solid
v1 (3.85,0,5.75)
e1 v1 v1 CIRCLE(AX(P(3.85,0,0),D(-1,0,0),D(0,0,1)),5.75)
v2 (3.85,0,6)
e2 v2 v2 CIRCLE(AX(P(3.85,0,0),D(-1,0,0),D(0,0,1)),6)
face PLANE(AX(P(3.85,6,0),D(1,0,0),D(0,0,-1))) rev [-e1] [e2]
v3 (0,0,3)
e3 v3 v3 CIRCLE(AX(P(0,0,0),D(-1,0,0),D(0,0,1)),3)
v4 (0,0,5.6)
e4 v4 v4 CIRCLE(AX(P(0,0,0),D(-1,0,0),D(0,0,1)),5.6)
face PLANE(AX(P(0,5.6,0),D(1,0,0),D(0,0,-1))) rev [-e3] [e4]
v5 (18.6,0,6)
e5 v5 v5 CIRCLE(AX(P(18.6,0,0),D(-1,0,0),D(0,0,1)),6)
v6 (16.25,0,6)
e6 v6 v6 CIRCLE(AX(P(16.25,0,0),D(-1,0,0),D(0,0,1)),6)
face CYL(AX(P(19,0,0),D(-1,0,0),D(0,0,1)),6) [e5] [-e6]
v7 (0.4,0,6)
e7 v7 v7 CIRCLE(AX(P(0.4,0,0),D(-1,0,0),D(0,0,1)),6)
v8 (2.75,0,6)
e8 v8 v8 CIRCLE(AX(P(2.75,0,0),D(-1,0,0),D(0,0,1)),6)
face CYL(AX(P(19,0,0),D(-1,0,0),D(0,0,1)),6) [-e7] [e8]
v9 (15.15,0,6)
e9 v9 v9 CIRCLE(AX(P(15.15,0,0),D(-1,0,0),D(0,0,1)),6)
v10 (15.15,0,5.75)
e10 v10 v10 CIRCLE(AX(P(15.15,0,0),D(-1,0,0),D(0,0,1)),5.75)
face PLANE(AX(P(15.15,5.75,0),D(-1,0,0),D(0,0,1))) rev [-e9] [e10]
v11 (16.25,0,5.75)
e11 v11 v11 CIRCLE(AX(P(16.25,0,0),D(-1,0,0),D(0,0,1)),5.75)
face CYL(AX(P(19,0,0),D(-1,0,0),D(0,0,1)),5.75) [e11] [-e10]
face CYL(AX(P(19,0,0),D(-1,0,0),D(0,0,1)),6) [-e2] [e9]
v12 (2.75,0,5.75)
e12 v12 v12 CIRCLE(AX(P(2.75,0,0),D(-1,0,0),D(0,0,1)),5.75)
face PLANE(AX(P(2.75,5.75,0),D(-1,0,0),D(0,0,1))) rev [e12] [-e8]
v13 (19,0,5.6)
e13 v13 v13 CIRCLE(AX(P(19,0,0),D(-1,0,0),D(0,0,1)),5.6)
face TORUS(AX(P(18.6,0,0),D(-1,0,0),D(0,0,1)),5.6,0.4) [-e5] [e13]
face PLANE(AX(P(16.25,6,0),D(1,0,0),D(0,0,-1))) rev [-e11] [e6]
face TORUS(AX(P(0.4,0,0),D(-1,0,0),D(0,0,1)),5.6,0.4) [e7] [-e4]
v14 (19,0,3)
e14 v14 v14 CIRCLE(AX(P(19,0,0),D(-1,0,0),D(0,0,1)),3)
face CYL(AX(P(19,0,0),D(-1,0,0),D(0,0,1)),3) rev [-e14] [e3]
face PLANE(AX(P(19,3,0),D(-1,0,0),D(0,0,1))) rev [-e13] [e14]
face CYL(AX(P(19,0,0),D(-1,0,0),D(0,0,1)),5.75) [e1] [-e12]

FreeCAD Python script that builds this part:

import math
import FreeCAD as App
import Part
import Sketcher
from FreeCAD import Vector

doc = App.newDocument("Part")
body = doc.addObject("PartDesign::Body", "Body")

# Sketch on XY plane
sketch1 = body.newObject("Sketcher::SketchObject", "Sketch")
sketch1.AttachmentSupport = (doc.getObject("XY_Plane"), [""])
sketch1.MapMode = "FlatFace"
sketch1.addGeometry([
    Part.LineSegment(Vector(0, 5.6, 0), Vector(0, 3, 0)),  # 0
    Part.LineSegment(Vector(0, 3, 0), Vector(19, 3, 0)),  # 1
    Part.LineSegment(Vector(19, 3, 0), Vector(19, 5.6, 0)),  # 2
    Part.ArcOfCircle(Part.Circle(Vector(18.6, 5.6, 0), Vector(0, 0, 1), 0.4), math.radians(0), math.radians(90)),  # 3
    Part.LineSegment(Vector(18.6, 6, 0), Vector(16.25, 6, 0)),  # 4
    Part.LineSegment(Vector(16.25, 6, 0), Vector(16.25, 5.75, 0)),  # 5
    Part.LineSegment(Vector(16.25, 5.75, 0), Vector(15.15, 5.75, 0)),  # 6
    Part.LineSegment(Vector(15.15, 5.75, 0), Vector(15.15, 6, 0)),  # 7
    Part.LineSegment(Vector(15.15, 6, 0), Vector(3.85, 6, 0)),  # 8
    Part.LineSegment(Vector(3.85, 6, 0), Vector(3.85, 5.75, 0)),  # 9
    Part.LineSegment(Vector(3.85, 5.75, 0), Vector(2.75, 5.75, 0)),  # 10
    Part.LineSegment(Vector(2.75, 5.75, 0), Vector(2.75, 6, 0)),  # 11
    Part.LineSegment(Vector(2.75, 6, 0), Vector(0.4, 6, 0)),  # 12
    Part.ArcOfCircle(Part.Circle(Vector(0.4, 5.6, 0), Vector(0, 0, 1), 0.4), math.radians(90), math.radians(180)),  # 13
], False)
sketch1.addConstraint([
    Sketcher.Constraint("Coincident", 0, 2, 1, 1),
    Sketcher.Constraint("Coincident", 1, 2, 2, 1),
    Sketcher.Constraint("Tangent", 2, 2, 3, 1),
    Sketcher.Constraint("Tangent", 3, 2, 4, 1),
    Sketcher.Constraint("Coincident", 4, 2, 5, 1),
    Sketcher.Constraint("Coincident", 5, 2, 6, 1),
    Sketcher.Constraint("Coincident", 6, 2, 7, 1),
    Sketcher.Constraint("Coincident", 7, 2, 8, 1),
    Sketcher.Constraint("Coincident", 8, 2, 9, 1),
    Sketcher.Constraint("Coincident", 9, 2, 10, 1),
    Sketcher.Constraint("Coincident", 10, 2, 11, 1),
    Sketcher.Constraint("Coincident", 11, 2, 12, 1),
    Sketcher.Constraint("Tangent", 12, 2, 13, 1),
    Sketcher.Constraint("Tangent", 13, 2, 0, 1),
    Sketcher.Constraint("Vertical", 0),
    Sketcher.Constraint("Horizontal", 1),
    Sketcher.Constraint("Vertical", 2),
    Sketcher.Constraint("Horizontal", 4),
    Sketcher.Constraint("Vertical", 5),
    Sketcher.Constraint("Horizontal", 6),
    Sketcher.Constraint("Vertical", 7),
    Sketcher.Constraint("Horizontal", 8),
    Sketcher.Constraint("Vertical", 9),
    Sketcher.Constraint("Horizontal", 10),
    Sketcher.Constraint("Vertical", 11),
    Sketcher.Constraint("Horizontal", 12),
    Sketcher.Constraint("Equal", 3, 13),
    Sketcher.Constraint("PointOnObject", 0, 2, -2),
    Sketcher.Constraint("Horizontal", 3, 3, 13, 3),
    Sketcher.Constraint("Horizontal", 4, 2, 7, 2),
    Sketcher.Constraint("Horizontal", 6, 2, 9, 2),
    Sketcher.Constraint("Equal", 6, 10),
    Sketcher.Constraint("Equal", 4, 12),
    Sketcher.Constraint("Radius", 3, 0.4),
    Sketcher.Constraint("DistanceX", 1, 1, 1, 2, 19.0),
    Sketcher.Constraint("DistanceX", 6, 2, 6, 1, 1.1),
    Sketcher.Constraint("DistanceX", 8, 2, 8, 1, 11.3),
    Sketcher.Constraint("DistanceY", 0, 2, 0, 1, 2.6),
    Sketcher.Constraint("DistanceY", -1, 1, 0, 2, 3.0),
    Sketcher.Constraint("DistanceY", 5, 2, 5, 1, 0.25),
])
revolution = body.newObject("PartDesign::Revolution", "Revolution")
revolution.Profile = sketch1
revolution.ReferenceAxis = (sketch1, ["H_Axis"])
revolution.Angle = 360

doc.recompute()
